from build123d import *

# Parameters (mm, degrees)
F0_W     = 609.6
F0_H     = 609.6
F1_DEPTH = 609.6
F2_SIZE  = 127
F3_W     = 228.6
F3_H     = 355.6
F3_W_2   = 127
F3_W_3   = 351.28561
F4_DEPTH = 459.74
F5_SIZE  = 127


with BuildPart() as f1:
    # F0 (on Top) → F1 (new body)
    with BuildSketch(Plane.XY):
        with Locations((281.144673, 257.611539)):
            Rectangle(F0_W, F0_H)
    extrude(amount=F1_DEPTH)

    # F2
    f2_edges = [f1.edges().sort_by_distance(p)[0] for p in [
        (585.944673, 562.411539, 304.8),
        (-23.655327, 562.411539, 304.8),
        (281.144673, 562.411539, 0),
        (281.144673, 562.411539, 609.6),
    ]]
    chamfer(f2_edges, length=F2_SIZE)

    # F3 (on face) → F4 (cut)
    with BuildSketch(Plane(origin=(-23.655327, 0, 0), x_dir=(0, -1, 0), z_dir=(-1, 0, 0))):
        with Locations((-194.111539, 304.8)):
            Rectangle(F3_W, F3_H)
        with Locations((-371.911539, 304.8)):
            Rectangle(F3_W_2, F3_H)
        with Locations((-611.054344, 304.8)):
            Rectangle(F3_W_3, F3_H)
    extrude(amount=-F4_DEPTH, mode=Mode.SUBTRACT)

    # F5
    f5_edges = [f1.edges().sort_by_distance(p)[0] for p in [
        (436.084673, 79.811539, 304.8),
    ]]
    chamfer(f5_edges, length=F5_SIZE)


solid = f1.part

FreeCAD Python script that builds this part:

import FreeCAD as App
import Part
import Sketcher
Q = App.Units.Quantity


def edges_at(feature, points):
    """Names of the edges that pass closest to the given points."""
    edges = feature.Shape.Edges
    near = lambda p: min(range(len(edges)), key=lambda i: edges[i].distToShape(Part.Vertex(*p))[0])
    return sorted({f"Edge{near(p) + 1}" for p in points})

doc = App.newDocument("Part")
body = doc.addObject("PartDesign::Body", "Body")

sketch1 = body.newObject("Sketcher::SketchObject", "Sketch")
sketch1.AttachmentSupport = (doc.getObject("XY_Plane"), [""])
sketch1.MapMode = "FlatFace"
sketch1.addGeometry([
    Part.LineSegment(App.Vector(-23.655327, 562.411539, 0), App.Vector(-23.655327, -47.188461, 0)),
    Part.LineSegment(App.Vector(-23.655327, -47.188461, 0), App.Vector(585.944673, -47.188461, 0)),
    Part.LineSegment(App.Vector(585.944673, -47.188461, 0), App.Vector(585.944673, 562.411539, 0)),
    Part.LineSegment(App.Vector(585.944673, 562.411539, 0), App.Vector(-23.655327, 562.411539, 0)),
], False)
sketch1.addConstraint([
    Sketcher.Constraint("Coincident", 0, 2, 1, 1),
    Sketcher.Constraint("Coincident", 1, 2, 2, 1),
    Sketcher.Constraint("Coincident", 2, 2, 3, 1),
    Sketcher.Constraint("Coincident", 3, 2, 0, 1),
    Sketcher.Constraint("Vertical", 0),
    Sketcher.Constraint("Horizontal", 1),
    Sketcher.Constraint("Vertical", 2),
    Sketcher.Constraint("Horizontal", 3),
    Sketcher.Constraint("Equal", 3, 0),
    Sketcher.Constraint("DistanceX", 1, 1, 1, 2, Q("24 in")),
    Sketcher.Constraint("DistanceY", 0, 2, -1, 1, 47.188461),
    Sketcher.Constraint("DistanceX", 0, 2, -1, 1, 23.655327),
])
pad1 = body.newObject("PartDesign::Pad", "Pad")
pad1.Profile = sketch1
pad1.Length = Q("24 in")
doc.recompute()

chamfer = body.newObject("PartDesign::Chamfer", "Chamfer")
chamfer.Base = (pad1, edges_at(pad1, [
    (585.945, 562.412, 304.8),
    (-23.655, 562.412, 304.8),
    (281.145, 562.412, 0),
    (281.145, 562.412, 609.6),
]))
chamfer.Size = Q("5 in")

sketch2 = body.newObject("Sketcher::SketchObject", "Sketch001")
sketch2.AttachmentSupport = (doc.getObject("YZ_Plane"), [""])
sketch2.MapMode = "FlatFace"
sketch2.AttachmentOffset = App.Placement(App.Vector(0, 0, -23.655327), App.Rotation())
sketch2.addGeometry([
    Part.LineSegment(App.Vector(79.811539, 127, 0), App.Vector(79.811539, 482.6, 0)),
    Part.LineSegment(App.Vector(79.811539, 482.6, 0), App.Vector(786.697149, 482.6, 0)),
    Part.LineSegment(App.Vector(786.697149, 482.6, 0), App.Vector(786.697149, 127, 0)),
    Part.LineSegment(App.Vector(786.697149, 127, 0), App.Vector(79.811539, 127, 0)),
], False)
sketch2.addConstraint([
    Sketcher.Constraint("Coincident", 0, 2, 1, 1),
    Sketcher.Constraint("Coincident", 1, 2, 2, 1),
    Sketcher.Constraint("Coincident", 2, 2, 3, 1),
    Sketcher.Constraint("Coincident", 3, 2, 0, 1),
    Sketcher.Constraint("Vertical", 0),
    Sketcher.Constraint("Horizontal", 1),
    Sketcher.Constraint("Vertical", 2),
    Sketcher.Constraint("Horizontal", 3),
    Sketcher.Constraint("DistanceY", 0, 1, 0, 2, Q("14 in")),
    Sketcher.Constraint("DistanceY", -1, 1, 0, 2, Q("19 in")),
    Sketcher.Constraint("DistanceX", 1, 1, 1, 2, 706.88561),
    Sketcher.Constraint("DistanceX", -1, 1, 0, 2, 79.811539),
])
pocket1 = body.newObject("PartDesign::Pocket", "Pocket")
pocket1.Profile = sketch2
pocket1.Length = Q("18.1 in")
pocket1.Reversed = True
doc.recompute()

chamfer2 = body.newObject("PartDesign::Chamfer", "Chamfer001")
chamfer2.Base = (pocket1, edges_at(pocket1, [(436.085, 79.812, 304.8)]))
chamfer2.Size = Q("5 in")

doc.recompute()
